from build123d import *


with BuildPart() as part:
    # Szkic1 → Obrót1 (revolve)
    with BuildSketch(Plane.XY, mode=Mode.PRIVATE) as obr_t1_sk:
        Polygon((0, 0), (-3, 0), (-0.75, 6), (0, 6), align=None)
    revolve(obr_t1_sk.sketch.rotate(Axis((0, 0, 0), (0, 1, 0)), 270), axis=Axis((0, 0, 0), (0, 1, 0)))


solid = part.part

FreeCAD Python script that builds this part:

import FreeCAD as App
import Part
import Sketcher
from FreeCAD import Vector

doc = App.newDocument("Part")
body = doc.addObject("PartDesign::Body", "Body")

# Sketch on XY plane
sketch1 = body.newObject("Sketcher::SketchObject", "Sketch")
sketch1.AttachmentSupport = (doc.getObject("XY_Plane"), [""])
sketch1.MapMode = "FlatFace"
sketch1.addGeometry(Part.LineSegment(Vector(-3, 0, 0), Vector(0, 0, 0)), False)
sketch1.addGeometry(Part.LineSegment(Vector(0, 0, 0), Vector(0, 6, 0)), False)
sketch1.addGeometry(Part.LineSegment(Vector(0, 6, 0), Vector(-0.8, 6, 0)), False)
sketch1.addGeometry(Part.LineSegment(Vector(-0.8, 6, 0), Vector(-3, 0, 0)), False)
sketch1.addConstraint(Sketcher.Constraint("Coincident", 0, 2, 1, 1))
sketch1.addConstraint(Sketcher.Constraint("Coincident", 1, 2, 2, 1))
sketch1.addConstraint(Sketcher.Constraint("Coincident", 2, 2, 3, 1))
sketch1.addConstraint(Sketcher.Constraint("Coincident", 3, 2, 0, 1))
sketch1.addConstraint(Sketcher.Constraint("Horizontal", 0))
sketch1.addConstraint(Sketcher.Constraint("Vertical", 1))
sketch1.addConstraint(Sketcher.Constraint("Horizontal", 2))
sketch1.addConstraint(Sketcher.Constraint("Coincident", 0, 2, -1, 1))
sketch1.addConstraint(Sketcher.Constraint("DistanceX", 0, 1, 0, 2, 3.0))
sketch1.addConstraint(Sketcher.Constraint("DistanceY", 1, 1, 1, 2, 6.0))
sketch1.addConstraint(Sketcher.Constraint("DistanceX", 2, 2, 2, 1, 0.75))
revolution = body.newObject("PartDesign::Revolution", "Revolution")
revolution.Profile = sketch1
revolution.ReferenceAxis = (sketch1, ["V_Axis"])
revolution.Angle = 360

doc.recompute()
